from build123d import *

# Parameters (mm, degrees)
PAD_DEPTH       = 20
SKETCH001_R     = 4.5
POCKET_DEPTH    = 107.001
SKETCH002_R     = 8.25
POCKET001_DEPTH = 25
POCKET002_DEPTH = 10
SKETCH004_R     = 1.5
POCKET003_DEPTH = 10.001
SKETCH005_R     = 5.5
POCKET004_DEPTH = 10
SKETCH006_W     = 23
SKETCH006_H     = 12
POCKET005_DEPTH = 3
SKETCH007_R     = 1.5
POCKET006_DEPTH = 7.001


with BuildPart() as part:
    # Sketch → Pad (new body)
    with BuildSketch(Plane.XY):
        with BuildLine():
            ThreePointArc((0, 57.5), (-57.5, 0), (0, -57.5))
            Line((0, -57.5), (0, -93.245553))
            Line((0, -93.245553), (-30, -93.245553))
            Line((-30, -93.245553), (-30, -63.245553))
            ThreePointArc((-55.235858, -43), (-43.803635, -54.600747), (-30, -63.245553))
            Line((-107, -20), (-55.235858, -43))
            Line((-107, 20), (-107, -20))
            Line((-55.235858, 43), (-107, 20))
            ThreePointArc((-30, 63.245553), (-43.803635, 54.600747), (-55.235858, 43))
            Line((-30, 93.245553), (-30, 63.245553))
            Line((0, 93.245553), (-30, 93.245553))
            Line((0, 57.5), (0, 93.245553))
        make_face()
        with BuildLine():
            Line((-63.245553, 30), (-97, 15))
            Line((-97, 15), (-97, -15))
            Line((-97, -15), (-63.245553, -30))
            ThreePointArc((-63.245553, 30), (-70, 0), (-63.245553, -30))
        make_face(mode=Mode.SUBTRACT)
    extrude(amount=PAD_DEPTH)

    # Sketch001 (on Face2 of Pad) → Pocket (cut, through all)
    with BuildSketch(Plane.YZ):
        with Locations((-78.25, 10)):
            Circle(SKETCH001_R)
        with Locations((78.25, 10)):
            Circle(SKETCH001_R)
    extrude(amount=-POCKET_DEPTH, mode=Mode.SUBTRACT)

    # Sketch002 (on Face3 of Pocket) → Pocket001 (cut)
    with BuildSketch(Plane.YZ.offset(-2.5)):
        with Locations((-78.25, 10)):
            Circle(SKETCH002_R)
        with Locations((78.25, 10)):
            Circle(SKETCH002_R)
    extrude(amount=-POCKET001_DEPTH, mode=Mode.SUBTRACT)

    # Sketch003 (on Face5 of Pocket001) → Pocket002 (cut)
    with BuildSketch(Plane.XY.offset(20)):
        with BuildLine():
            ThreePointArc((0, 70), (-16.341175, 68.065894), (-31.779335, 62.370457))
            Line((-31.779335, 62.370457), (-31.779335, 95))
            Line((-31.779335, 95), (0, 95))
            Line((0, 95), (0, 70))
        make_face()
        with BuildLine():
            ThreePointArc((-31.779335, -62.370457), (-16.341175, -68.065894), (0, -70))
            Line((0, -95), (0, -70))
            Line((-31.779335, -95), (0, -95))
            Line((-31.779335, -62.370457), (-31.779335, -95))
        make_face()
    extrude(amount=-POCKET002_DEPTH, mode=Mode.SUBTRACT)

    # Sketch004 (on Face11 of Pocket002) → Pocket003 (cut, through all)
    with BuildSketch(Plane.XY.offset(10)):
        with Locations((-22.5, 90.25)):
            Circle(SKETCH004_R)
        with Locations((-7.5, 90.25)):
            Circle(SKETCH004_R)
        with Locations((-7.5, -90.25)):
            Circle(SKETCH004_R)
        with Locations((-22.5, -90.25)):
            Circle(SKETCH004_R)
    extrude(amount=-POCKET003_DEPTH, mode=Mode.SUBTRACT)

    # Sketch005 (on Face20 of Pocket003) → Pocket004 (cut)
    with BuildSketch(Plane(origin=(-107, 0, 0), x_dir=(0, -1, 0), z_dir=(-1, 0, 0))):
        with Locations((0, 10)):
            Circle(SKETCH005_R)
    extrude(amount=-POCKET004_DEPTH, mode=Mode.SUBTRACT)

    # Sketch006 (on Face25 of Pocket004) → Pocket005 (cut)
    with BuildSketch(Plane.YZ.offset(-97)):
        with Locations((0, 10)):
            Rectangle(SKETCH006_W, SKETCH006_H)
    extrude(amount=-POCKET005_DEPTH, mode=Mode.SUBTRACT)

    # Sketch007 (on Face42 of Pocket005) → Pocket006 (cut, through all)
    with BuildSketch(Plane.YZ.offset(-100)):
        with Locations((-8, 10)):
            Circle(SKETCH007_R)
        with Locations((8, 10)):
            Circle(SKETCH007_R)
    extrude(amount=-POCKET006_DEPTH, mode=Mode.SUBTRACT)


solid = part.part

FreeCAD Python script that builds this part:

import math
import FreeCAD as App
import Part
import Sketcher
Q = App.Units.Quantity

doc = App.newDocument("Part")
body = doc.addObject("PartDesign::Body", "Body")

# Sketch on XY plane
sketch1 = body.newObject("Sketcher::SketchObject", "Sketch")
sketch1.AttachmentSupport = (doc.getObject("XY_Plane"), [""])
sketch1.MapMode = "FlatFace"
sketch1.addGeometry([
    Part.ArcOfCircle(Part.Circle(App.Vector(0, 0, 0), App.Vector(0, 0, 1), 58), math.radians(90), math.radians(270)),  # 0
    Part.LineSegment(App.Vector(0, 58, 0), App.Vector(0, 93, 0)),  # 1
    Part.LineSegment(App.Vector(0, 93, 0), App.Vector(-30, 93, 0)),  # 2
    Part.LineSegment(App.Vector(-30, 93, 0), App.Vector(-30, 63, 0)),  # 3
    Part.ArcOfCircle(Part.Circle(App.Vector(0, 0, 0), App.Vector(0, 0, 1), 70), math.radians(115), math.radians(142)),  # 4
    Part.LineSegment(App.Vector(-55, 43, 0), App.Vector(-107, 20, 0)),  # 5
    Part.LineSegment(App.Vector(-107, 20, 0), App.Vector(-107, -20, 0)),  # 6
    Part.LineSegment(App.Vector(-107, -20, 0), App.Vector(-55, -43, 0)),  # 7
    Part.ArcOfCircle(Part.Circle(App.Vector(0, 0, 0), App.Vector(0, 0, 1), 70), math.radians(-142), math.radians(-115)),  # 8
    Part.LineSegment(App.Vector(-30, -63, 0), App.Vector(-30, -93, 0)),  # 9
    Part.LineSegment(App.Vector(-30, -93, 0), App.Vector(0, -93, 0)),  # 10
    Part.LineSegment(App.Vector(0, -93, 0), App.Vector(0, -58, 0)),  # 11
    Part.ArcOfCircle(Part.Circle(App.Vector(0, 0, 0), App.Vector(0, 0, 1), 70), math.radians(155), math.radians(205)),  # 12
    Part.LineSegment(App.Vector(-63, -30, 0), App.Vector(-97, -15, 0)),  # 13
    Part.LineSegment(App.Vector(-97, -15, 0), App.Vector(-97, 15, 0)),  # 14
    Part.LineSegment(App.Vector(-97, 15, 0), App.Vector(-63, 30, 0)),  # 15
], False)
sketch1.addConstraint([
    Sketcher.Constraint("Coincident", 0, 1, 1, 1),
    Sketcher.Constraint("Coincident", 1, 2, 2, 1),
    Sketcher.Constraint("Coincident", 2, 2, 3, 1),
    Sketcher.Constraint("Coincident", 3, 2, 4, 1),
    Sketcher.Constraint("Coincident", 4, 2, 5, 1),
    Sketcher.Constraint("Coincident", 5, 2, 6, 1),
    Sketcher.Constraint("Coincident", 6, 2, 7, 1),
    Sketcher.Constraint("Coincident", 7, 2, 8, 1),
    Sketcher.Constraint("Coincident", 8, 2, 9, 1),
    Sketcher.Constraint("Coincident", 9, 2, 10, 1),
    Sketcher.Constraint("Coincident", 10, 2, 11, 1),
    Sketcher.Constraint("Coincident", 11, 2, 0, 2),
    Sketcher.Constraint("Coincident", 12, 2, 13, 1),
    Sketcher.Constraint("Coincident", 13, 2, 14, 1),
    Sketcher.Constraint("Coincident", 14, 2, 15, 1),
    Sketcher.Constraint("Coincident", 15, 2, 12, 1),
    Sketcher.Constraint("Vertical", 1),
    Sketcher.Constraint("Horizontal", 2),
    Sketcher.Constraint("Vertical", 3),
    Sketcher.Constraint("Vertical", 6),
    Sketcher.Constraint("Vertical", 9),
    Sketcher.Constraint("Horizontal", 10),
    Sketcher.Constraint("Vertical", 11),
    Sketcher.Constraint("Vertical", 14),
    Sketcher.Constraint("Coincident", 0, 3, -1, 1),
    Sketcher.Constraint("Coincident", 4, 3, -1, 1),
    Sketcher.Constraint("Coincident", 8, 3, -1, 1),
    Sketcher.Constraint("Coincident", 12, 3, -1, 1),
    Sketcher.Constraint("Equal", 4, 8),
    Sketcher.Constraint("Symmetric", 1, 2, 10, 2, -1, 1),
    Sketcher.Constraint("PointOnObject", 0, 1, -2),
    Sketcher.Constraint("Vertical", 4, 2, 7, 2),
    Sketcher.Constraint("Vertical", 3, 2, 8, 2),
    Sketcher.Constraint("Vertical", 12, 2, 15, 2),
    Sketcher.Constraint("Equal", 10, 3),
    Sketcher.Constraint("Equal", 9, 14),
    Sketcher.Constraint("Equal", 5, 7),
    Sketcher.Constraint("Equal", 13, 15),
    Sketcher.Constraint("Radius", 12, Q("69.999998 mm")),
    Sketcher.Constraint("Radius", 0, Q("57.5 mm")),
    Sketcher.Constraint("DistanceX", 2, 2, 2, 1, Q("30 mm")),
    Sketcher.Constraint("DistanceY", 6, 2, 6, 1, Q("40 mm")),
    Sketcher.Constraint("DistanceY", -1, 1, 4, 2, Q("43 mm")),
    Sketcher.Constraint("DistanceX", 5, 2, -1, 1, Q("107 mm")),
    Sketcher.Constraint("DistanceY", 12, 2, -1, 1, Q("30 mm")),
    Sketcher.Constraint("DistanceX", 13, 2, -1, 1, Q("97 mm")),
    Sketcher.Constraint("Radius", 4, Q("69.999995 mm")),
])
pad1 = body.newObject("PartDesign::Pad", "Pad")
pad1.Profile = sketch1
pad1.Length = 20

# Sketch on YZ plane
sketch2 = body.newObject("Sketcher::SketchObject", "Sketch001")
sketch2.AttachmentSupport = (doc.getObject("YZ_Plane"), [""])
sketch2.MapMode = "FlatFace"
sketch2.addGeometry([
    Part.Circle(App.Vector(-78.2, 10, 0), App.Vector(0, 0, 1), 4.5),
    Part.Circle(App.Vector(78.2, 10, 0), App.Vector(0, 0, 1), 4.5),
], False)
sketch2.addConstraint([
    Sketcher.Constraint("Equal", 0, 1),
    Sketcher.Constraint("Symmetric", 0, 3, 1, 3, -2),
    Sketcher.Constraint("Diameter", 0, Q("9 mm")),
    Sketcher.Constraint("DistanceY", -1, 1, 0, 3, Q("10 mm")),
    Sketcher.Constraint("DistanceX", 0, 3, 1, 3, Q("156.5 mm")),
])
pocket1 = body.newObject("PartDesign::Pocket", "Pocket")
pocket1.Profile = sketch2
pocket1.Type = "ThroughAll"

# Sketch on YZ plane
sketch3 = body.newObject("Sketcher::SketchObject", "Sketch002")
sketch3.AttachmentSupport = (doc.getObject("YZ_Plane"), [""])
sketch3.MapMode = "FlatFace"
sketch3.AttachmentOffset = App.Placement(App.Vector(0, 0, -2.5), App.Rotation())
sketch3.addGeometry([
    Part.Circle(App.Vector(-78, 10, 0), App.Vector(0, 0, 1), 8),
    Part.Circle(App.Vector(78, 10, 0), App.Vector(0, 0, 1), 8),
], False)
sketch3.addConstraint([
    Sketcher.Constraint("Equal", 0, 1),
    Sketcher.Constraint("Symmetric", 0, 3, 1, 3, -2),
    Sketcher.Constraint("Diameter", 0, Q("16.5 mm")),
    Sketcher.Constraint("DistanceY", -1, 1, 0, 3, Q("10 mm")),
    Sketcher.Constraint("DistanceX", 0, 3, 1, 3, Q("156.5 mm")),
])
pocket2 = body.newObject("PartDesign::Pocket", "Pocket001")
pocket2.Profile = sketch3
pocket2.Length = 25

# Sketch on XY plane
sketch4 = body.newObject("Sketcher::SketchObject", "Sketch003")
sketch4.AttachmentSupport = (doc.getObject("XY_Plane"), [""])
sketch4.MapMode = "FlatFace"
sketch4.AttachmentOffset = App.Placement(App.Vector(0, 0, 20), App.Rotation())
sketch4.addGeometry([
    Part.ArcOfCircle(Part.Circle(App.Vector(0.000005, -0.000024, 0), App.Vector(0, 0, 1), 70.000024), math.radians(90.000004), math.radians(116.999995)),  # 0
    Part.LineSegment(App.Vector(0, 70, 0), App.Vector(0, 95, 0)),  # 1
    Part.LineSegment(App.Vector(0, 95, 0), App.Vector(-31.779335, 95, 0)),  # 2
    Part.LineSegment(App.Vector(-31.779335, 95, 0), App.Vector(-31.779335, 62.370457, 0)),  # 3
    Part.ArcOfCircle(Part.Circle(App.Vector(0.000005, 0.000024, 0), App.Vector(0, 0, 1), 70.000024), math.radians(-116.999995), math.radians(-90.000004)),  # 4
    Part.LineSegment(App.Vector(-31.779335, -62.370457, 0), App.Vector(-31.779335, -95, 0)),  # 5
    Part.LineSegment(App.Vector(-31.779335, -95, 0), App.Vector(0, -95, 0)),  # 6
    Part.LineSegment(App.Vector(0, -95, 0), App.Vector(0, -70, 0)),  # 7
], False)
sketch4.addConstraint([
    Sketcher.Constraint("Coincident", 0, 1, 1, 1),
    Sketcher.Constraint("Coincident", 1, 2, 2, 1),
    Sketcher.Constraint("Coincident", 2, 2, 3, 1),
    Sketcher.Constraint("Coincident", 3, 2, 0, 2),
    Sketcher.Constraint("Coincident", 4, 1, 5, 1),
    Sketcher.Constraint("Coincident", 5, 2, 6, 1),
    Sketcher.Constraint("Coincident", 6, 2, 7, 1),
    Sketcher.Constraint("Coincident", 7, 2, 4, 2),
    Sketcher.Constraint("Vertical", 1),
    Sketcher.Constraint("Horizontal", 2),
    Sketcher.Constraint("Vertical", 3),
    Sketcher.Constraint("Vertical", 5),
    Sketcher.Constraint("Horizontal", 6),
    Sketcher.Constraint("Vertical", 7),
    Sketcher.Constraint("Equal", 0, 4),
    Sketcher.Constraint("Symmetric", 1, 2, 6, 2, -1, 1),
    Sketcher.Constraint("Symmetric", 0, 3, 4, 3, -1),
    Sketcher.Constraint("PointOnObject", 0, 1, -2),
    Sketcher.Constraint("Vertical", 3, 2, 4, 1),
    Sketcher.Constraint("DistanceY", 1, 1, 1, 2, Q("25 mm")),
    Sketcher.Constraint("DistanceY", -1, 1, 0, 1, Q("70 mm")),
    Sketcher.Constraint("Radius", 0, Q("70.000024 mm")),
    Sketcher.Constraint("DistanceX", 2, 2, 2, 1, Q("31.779335 mm")),
    Sketcher.Constraint("DistanceY", 3, 2, 3, 1, Q("32.629543 mm")),
])
pocket3 = body.newObject("PartDesign::Pocket", "Pocket002")
pocket3.Profile = sketch4
pocket3.Length = 10

# Sketch on XY plane
sketch5 = body.newObject("Sketcher::SketchObject", "Sketch004")
sketch5.AttachmentSupport = (doc.getObject("XY_Plane"), [""])
sketch5.MapMode = "FlatFace"
sketch5.AttachmentOffset = App.Placement(App.Vector(0, 0, 10), App.Rotation())
sketch5.addGeometry([
    Part.Circle(App.Vector(-22.5, 90.2, 0), App.Vector(0, 0, 1), 1.5),
    Part.Circle(App.Vector(-7.5, 90.2, 0), App.Vector(0, 0, 1), 1.5),
    Part.Circle(App.Vector(-7.5, -90.2, 0), App.Vector(0, 0, 1), 1.5),
    Part.Circle(App.Vector(-22.5, -90.2, 0), App.Vector(0, 0, 1), 1.5),
], False)
sketch5.addConstraint([
    Sketcher.Constraint("Equal", 0, 1),
    Sketcher.Constraint("Equal", 1, 2),
    Sketcher.Constraint("Equal", 2, 3),
    Sketcher.Constraint("Symmetric", 1, 3, 2, 3, -1),
    Sketcher.Constraint("Symmetric", 0, 3, 3, 3, -1),
    Sketcher.Constraint("Horizontal", 0, 3, 1, 3),
    Sketcher.Constraint("Diameter", 0, Q("3 mm")),
    Sketcher.Constraint("DistanceX", 0, 3, 1, 3, Q("15 mm")),
    Sketcher.Constraint("DistanceX", 0, 3, -1, 1, Q("22.5 mm")),
    Sketcher.Constraint("DistanceY", 2, 3, 1, 3, Q("180.5 mm")),
])
pocket4 = body.newObject("PartDesign::Pocket", "Pocket003")
pocket4.Profile = sketch5
pocket4.Type = "ThroughAll"

# Sketch on YZ plane
sketch6 = body.newObject("Sketcher::SketchObject", "Sketch005")
sketch6.AttachmentSupport = (doc.getObject("YZ_Plane"), [""])
sketch6.MapMode = "FlatFace"
sketch6.AttachmentOffset = App.Placement(App.Vector(0, 0, -107), App.Rotation())
sketch6.addGeometry(Part.Circle(App.Vector(0, 10, 0), App.Vector(0, 0, 1), 6), False)
sketch6.addConstraint([
    Sketcher.Constraint("PointOnObject", 0, 3, -2),
    Sketcher.Constraint("Diameter", 0, Q("11 mm")),
    Sketcher.Constraint("DistanceY", -1, 1, 0, 3, Q("10 mm")),
])
pocket5 = body.newObject("PartDesign::Pocket", "Pocket004")
pocket5.Profile = sketch6
pocket5.Length = 10
pocket5.Reversed = True

# Sketch on YZ plane
sketch7 = body.newObject("Sketcher::SketchObject", "Sketch006")
sketch7.AttachmentSupport = (doc.getObject("YZ_Plane"), [""])
sketch7.MapMode = "FlatFace"
sketch7.AttachmentOffset = App.Placement(App.Vector(0, 0, -97), App.Rotation())
sketch7.addGeometry([
    Part.LineSegment(App.Vector(-12, 16, 0), App.Vector(-12, 4, 0)),
    Part.LineSegment(App.Vector(-12, 4, 0), App.Vector(12, 4, 0)),
    Part.LineSegment(App.Vector(12, 4, 0), App.Vector(12, 16, 0)),
    Part.LineSegment(App.Vector(12, 16, 0), App.Vector(-12, 16, 0)),
], False)
sketch7.addConstraint([
    Sketcher.Constraint("Coincident", 0, 2, 1, 1),
    Sketcher.Constraint("Coincident", 1, 2, 2, 1),
    Sketcher.Constraint("Coincident", 2, 2, 3, 1),
    Sketcher.Constraint("Coincident", 3, 2, 0, 1),
    Sketcher.Constraint("Vertical", 0),
    Sketcher.Constraint("Horizontal", 1),
    Sketcher.Constraint("Vertical", 2),
    Sketcher.Constraint("Horizontal", 3),
    Sketcher.Constraint("DistanceX", 1, 1, 1, 2, Q("23 mm")),
    Sketcher.Constraint("DistanceY", 0, 2, 0, 1, Q("12 mm")),
    Sketcher.Constraint("DistanceY", -1, 1, 0, 2, Q("4 mm")),
    Sketcher.Constraint("DistanceX", 0, 2, -1, 1, Q("11.5 mm")),
])
pocket6 = body.newObject("PartDesign::Pocket", "Pocket005")
pocket6.Profile = sketch7
pocket6.Length = 3

# Sketch on YZ plane
sketch8 = body.newObject("Sketcher::SketchObject", "Sketch007")
sketch8.AttachmentSupport = (doc.getObject("YZ_Plane"), [""])
sketch8.MapMode = "FlatFace"
sketch8.AttachmentOffset = App.Placement(App.Vector(0, 0, -100), App.Rotation())
sketch8.addGeometry([
    Part.Circle(App.Vector(-8, 10, 0), App.Vector(0, 0, 1), 1.5),
    Part.Circle(App.Vector(8, 10, 0), App.Vector(0, 0, 1), 1.5),
], False)
sketch8.addConstraint([
    Sketcher.Constraint("Equal", 0, 1),
    Sketcher.Constraint("Symmetric", 0, 3, 1, 3, -2),
    Sketcher.Constraint("Diameter", 0, Q("3 mm")),
    Sketcher.Constraint("DistanceX", 0, 3, -1, 1, Q("8 mm")),
    Sketcher.Constraint("DistanceY", -1, 1, 0, 3, Q("10 mm")),
])
pocket7 = body.newObject("PartDesign::Pocket", "Pocket006")
pocket7.Profile = sketch8
pocket7.Type = "ThroughAll"

doc.recompute()
